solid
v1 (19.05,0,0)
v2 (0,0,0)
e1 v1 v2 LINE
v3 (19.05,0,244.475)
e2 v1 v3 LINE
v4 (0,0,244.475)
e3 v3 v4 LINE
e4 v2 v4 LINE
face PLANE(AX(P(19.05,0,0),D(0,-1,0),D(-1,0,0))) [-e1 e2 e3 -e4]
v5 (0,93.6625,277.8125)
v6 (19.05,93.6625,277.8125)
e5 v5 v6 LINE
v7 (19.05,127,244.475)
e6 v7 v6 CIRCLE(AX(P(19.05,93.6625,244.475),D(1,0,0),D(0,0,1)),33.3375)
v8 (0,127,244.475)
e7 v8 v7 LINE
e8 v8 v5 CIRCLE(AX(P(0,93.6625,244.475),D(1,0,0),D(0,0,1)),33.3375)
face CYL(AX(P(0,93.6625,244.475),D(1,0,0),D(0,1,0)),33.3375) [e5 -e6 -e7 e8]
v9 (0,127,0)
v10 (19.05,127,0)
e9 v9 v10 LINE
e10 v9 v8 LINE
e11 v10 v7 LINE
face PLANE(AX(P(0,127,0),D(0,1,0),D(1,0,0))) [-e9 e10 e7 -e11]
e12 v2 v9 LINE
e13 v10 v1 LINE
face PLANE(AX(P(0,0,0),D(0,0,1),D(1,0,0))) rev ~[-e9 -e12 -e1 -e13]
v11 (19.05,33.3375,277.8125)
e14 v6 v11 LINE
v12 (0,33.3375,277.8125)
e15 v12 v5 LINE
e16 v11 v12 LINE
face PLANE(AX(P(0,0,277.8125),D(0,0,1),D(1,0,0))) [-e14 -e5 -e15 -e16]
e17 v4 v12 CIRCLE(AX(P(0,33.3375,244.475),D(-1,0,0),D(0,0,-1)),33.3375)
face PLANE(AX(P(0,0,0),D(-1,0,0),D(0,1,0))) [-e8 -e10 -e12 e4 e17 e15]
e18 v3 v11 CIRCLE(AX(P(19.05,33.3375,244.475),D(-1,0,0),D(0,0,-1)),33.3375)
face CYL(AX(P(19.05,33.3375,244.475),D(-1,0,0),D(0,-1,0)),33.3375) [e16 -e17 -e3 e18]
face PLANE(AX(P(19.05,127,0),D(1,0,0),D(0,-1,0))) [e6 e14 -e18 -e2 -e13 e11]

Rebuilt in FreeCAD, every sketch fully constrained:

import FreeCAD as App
import Part
import Sketcher

V = App.Vector
Q = App.Units.Quantity


def edges_at(feature, points):
    """Names of the edges that pass closest to the given points."""
    edges = feature.Shape.Edges
    near = lambda p: min(range(len(edges)), key=lambda i: edges[i].distToShape(Part.Vertex(*p))[0])
    return sorted({f"Edge{near(p) + 1}" for p in points})

doc = App.newDocument("Part")
body = doc.addObject("PartDesign::Body", "Body")

sketch1 = body.newObject("Sketcher::SketchObject", "Sketch")
sketch1.AttachmentSupport = (doc.getObject("XY_Plane"), [""])
sketch1.MapMode = "FlatFace"
sketch1.addGeometry(Part.LineSegment(V(0, 127, 0), V(0, 0, 0)), False)
sketch1.addGeometry(Part.LineSegment(V(0, 0, 0), V(19.05, 0, 0)), False)
sketch1.addGeometry(Part.LineSegment(V(19.05, 0, 0), V(19.05, 127, 0)), False)
sketch1.addGeometry(Part.LineSegment(V(19.05, 127, 0), V(0, 127, 0)), False)
sketch1.addConstraint(Sketcher.Constraint("Coincident", 0, 2, 1, 1))
sketch1.addConstraint(Sketcher.Constraint("Coincident", 1, 2, 2, 1))
sketch1.addConstraint(Sketcher.Constraint("Coincident", 2, 2, 3, 1))
sketch1.addConstraint(Sketcher.Constraint("Coincident", 3, 2, 0, 1))
sketch1.addConstraint(Sketcher.Constraint("Vertical", 0))
sketch1.addConstraint(Sketcher.Constraint("Horizontal", 1))
sketch1.addConstraint(Sketcher.Constraint("Vertical", 2))
sketch1.addConstraint(Sketcher.Constraint("Horizontal", 3))
sketch1.addConstraint(Sketcher.Constraint("Coincident", 0, 2, -1, 1))
sketch1.addConstraint(Sketcher.Constraint("DistanceY", 0, 2, 0, 1, Q("5 in")))
sketch1.addConstraint(Sketcher.Constraint("DistanceX", 1, 1, 1, 2, Q("0.75 in")))
pad1 = body.newObject("PartDesign::Pad", "Pad")
pad1.Profile = sketch1
pad1.Length = Q("10.9375 in")
doc.recompute()

fillet = body.newObject("PartDesign::Fillet", "Fillet")
fillet.Base = (pad1, edges_at(pad1, [(9.525, 0, 277.812), (9.525, 127, 277.812)]))
fillet.Radius = Q("1.3125 in")

doc.recompute()
